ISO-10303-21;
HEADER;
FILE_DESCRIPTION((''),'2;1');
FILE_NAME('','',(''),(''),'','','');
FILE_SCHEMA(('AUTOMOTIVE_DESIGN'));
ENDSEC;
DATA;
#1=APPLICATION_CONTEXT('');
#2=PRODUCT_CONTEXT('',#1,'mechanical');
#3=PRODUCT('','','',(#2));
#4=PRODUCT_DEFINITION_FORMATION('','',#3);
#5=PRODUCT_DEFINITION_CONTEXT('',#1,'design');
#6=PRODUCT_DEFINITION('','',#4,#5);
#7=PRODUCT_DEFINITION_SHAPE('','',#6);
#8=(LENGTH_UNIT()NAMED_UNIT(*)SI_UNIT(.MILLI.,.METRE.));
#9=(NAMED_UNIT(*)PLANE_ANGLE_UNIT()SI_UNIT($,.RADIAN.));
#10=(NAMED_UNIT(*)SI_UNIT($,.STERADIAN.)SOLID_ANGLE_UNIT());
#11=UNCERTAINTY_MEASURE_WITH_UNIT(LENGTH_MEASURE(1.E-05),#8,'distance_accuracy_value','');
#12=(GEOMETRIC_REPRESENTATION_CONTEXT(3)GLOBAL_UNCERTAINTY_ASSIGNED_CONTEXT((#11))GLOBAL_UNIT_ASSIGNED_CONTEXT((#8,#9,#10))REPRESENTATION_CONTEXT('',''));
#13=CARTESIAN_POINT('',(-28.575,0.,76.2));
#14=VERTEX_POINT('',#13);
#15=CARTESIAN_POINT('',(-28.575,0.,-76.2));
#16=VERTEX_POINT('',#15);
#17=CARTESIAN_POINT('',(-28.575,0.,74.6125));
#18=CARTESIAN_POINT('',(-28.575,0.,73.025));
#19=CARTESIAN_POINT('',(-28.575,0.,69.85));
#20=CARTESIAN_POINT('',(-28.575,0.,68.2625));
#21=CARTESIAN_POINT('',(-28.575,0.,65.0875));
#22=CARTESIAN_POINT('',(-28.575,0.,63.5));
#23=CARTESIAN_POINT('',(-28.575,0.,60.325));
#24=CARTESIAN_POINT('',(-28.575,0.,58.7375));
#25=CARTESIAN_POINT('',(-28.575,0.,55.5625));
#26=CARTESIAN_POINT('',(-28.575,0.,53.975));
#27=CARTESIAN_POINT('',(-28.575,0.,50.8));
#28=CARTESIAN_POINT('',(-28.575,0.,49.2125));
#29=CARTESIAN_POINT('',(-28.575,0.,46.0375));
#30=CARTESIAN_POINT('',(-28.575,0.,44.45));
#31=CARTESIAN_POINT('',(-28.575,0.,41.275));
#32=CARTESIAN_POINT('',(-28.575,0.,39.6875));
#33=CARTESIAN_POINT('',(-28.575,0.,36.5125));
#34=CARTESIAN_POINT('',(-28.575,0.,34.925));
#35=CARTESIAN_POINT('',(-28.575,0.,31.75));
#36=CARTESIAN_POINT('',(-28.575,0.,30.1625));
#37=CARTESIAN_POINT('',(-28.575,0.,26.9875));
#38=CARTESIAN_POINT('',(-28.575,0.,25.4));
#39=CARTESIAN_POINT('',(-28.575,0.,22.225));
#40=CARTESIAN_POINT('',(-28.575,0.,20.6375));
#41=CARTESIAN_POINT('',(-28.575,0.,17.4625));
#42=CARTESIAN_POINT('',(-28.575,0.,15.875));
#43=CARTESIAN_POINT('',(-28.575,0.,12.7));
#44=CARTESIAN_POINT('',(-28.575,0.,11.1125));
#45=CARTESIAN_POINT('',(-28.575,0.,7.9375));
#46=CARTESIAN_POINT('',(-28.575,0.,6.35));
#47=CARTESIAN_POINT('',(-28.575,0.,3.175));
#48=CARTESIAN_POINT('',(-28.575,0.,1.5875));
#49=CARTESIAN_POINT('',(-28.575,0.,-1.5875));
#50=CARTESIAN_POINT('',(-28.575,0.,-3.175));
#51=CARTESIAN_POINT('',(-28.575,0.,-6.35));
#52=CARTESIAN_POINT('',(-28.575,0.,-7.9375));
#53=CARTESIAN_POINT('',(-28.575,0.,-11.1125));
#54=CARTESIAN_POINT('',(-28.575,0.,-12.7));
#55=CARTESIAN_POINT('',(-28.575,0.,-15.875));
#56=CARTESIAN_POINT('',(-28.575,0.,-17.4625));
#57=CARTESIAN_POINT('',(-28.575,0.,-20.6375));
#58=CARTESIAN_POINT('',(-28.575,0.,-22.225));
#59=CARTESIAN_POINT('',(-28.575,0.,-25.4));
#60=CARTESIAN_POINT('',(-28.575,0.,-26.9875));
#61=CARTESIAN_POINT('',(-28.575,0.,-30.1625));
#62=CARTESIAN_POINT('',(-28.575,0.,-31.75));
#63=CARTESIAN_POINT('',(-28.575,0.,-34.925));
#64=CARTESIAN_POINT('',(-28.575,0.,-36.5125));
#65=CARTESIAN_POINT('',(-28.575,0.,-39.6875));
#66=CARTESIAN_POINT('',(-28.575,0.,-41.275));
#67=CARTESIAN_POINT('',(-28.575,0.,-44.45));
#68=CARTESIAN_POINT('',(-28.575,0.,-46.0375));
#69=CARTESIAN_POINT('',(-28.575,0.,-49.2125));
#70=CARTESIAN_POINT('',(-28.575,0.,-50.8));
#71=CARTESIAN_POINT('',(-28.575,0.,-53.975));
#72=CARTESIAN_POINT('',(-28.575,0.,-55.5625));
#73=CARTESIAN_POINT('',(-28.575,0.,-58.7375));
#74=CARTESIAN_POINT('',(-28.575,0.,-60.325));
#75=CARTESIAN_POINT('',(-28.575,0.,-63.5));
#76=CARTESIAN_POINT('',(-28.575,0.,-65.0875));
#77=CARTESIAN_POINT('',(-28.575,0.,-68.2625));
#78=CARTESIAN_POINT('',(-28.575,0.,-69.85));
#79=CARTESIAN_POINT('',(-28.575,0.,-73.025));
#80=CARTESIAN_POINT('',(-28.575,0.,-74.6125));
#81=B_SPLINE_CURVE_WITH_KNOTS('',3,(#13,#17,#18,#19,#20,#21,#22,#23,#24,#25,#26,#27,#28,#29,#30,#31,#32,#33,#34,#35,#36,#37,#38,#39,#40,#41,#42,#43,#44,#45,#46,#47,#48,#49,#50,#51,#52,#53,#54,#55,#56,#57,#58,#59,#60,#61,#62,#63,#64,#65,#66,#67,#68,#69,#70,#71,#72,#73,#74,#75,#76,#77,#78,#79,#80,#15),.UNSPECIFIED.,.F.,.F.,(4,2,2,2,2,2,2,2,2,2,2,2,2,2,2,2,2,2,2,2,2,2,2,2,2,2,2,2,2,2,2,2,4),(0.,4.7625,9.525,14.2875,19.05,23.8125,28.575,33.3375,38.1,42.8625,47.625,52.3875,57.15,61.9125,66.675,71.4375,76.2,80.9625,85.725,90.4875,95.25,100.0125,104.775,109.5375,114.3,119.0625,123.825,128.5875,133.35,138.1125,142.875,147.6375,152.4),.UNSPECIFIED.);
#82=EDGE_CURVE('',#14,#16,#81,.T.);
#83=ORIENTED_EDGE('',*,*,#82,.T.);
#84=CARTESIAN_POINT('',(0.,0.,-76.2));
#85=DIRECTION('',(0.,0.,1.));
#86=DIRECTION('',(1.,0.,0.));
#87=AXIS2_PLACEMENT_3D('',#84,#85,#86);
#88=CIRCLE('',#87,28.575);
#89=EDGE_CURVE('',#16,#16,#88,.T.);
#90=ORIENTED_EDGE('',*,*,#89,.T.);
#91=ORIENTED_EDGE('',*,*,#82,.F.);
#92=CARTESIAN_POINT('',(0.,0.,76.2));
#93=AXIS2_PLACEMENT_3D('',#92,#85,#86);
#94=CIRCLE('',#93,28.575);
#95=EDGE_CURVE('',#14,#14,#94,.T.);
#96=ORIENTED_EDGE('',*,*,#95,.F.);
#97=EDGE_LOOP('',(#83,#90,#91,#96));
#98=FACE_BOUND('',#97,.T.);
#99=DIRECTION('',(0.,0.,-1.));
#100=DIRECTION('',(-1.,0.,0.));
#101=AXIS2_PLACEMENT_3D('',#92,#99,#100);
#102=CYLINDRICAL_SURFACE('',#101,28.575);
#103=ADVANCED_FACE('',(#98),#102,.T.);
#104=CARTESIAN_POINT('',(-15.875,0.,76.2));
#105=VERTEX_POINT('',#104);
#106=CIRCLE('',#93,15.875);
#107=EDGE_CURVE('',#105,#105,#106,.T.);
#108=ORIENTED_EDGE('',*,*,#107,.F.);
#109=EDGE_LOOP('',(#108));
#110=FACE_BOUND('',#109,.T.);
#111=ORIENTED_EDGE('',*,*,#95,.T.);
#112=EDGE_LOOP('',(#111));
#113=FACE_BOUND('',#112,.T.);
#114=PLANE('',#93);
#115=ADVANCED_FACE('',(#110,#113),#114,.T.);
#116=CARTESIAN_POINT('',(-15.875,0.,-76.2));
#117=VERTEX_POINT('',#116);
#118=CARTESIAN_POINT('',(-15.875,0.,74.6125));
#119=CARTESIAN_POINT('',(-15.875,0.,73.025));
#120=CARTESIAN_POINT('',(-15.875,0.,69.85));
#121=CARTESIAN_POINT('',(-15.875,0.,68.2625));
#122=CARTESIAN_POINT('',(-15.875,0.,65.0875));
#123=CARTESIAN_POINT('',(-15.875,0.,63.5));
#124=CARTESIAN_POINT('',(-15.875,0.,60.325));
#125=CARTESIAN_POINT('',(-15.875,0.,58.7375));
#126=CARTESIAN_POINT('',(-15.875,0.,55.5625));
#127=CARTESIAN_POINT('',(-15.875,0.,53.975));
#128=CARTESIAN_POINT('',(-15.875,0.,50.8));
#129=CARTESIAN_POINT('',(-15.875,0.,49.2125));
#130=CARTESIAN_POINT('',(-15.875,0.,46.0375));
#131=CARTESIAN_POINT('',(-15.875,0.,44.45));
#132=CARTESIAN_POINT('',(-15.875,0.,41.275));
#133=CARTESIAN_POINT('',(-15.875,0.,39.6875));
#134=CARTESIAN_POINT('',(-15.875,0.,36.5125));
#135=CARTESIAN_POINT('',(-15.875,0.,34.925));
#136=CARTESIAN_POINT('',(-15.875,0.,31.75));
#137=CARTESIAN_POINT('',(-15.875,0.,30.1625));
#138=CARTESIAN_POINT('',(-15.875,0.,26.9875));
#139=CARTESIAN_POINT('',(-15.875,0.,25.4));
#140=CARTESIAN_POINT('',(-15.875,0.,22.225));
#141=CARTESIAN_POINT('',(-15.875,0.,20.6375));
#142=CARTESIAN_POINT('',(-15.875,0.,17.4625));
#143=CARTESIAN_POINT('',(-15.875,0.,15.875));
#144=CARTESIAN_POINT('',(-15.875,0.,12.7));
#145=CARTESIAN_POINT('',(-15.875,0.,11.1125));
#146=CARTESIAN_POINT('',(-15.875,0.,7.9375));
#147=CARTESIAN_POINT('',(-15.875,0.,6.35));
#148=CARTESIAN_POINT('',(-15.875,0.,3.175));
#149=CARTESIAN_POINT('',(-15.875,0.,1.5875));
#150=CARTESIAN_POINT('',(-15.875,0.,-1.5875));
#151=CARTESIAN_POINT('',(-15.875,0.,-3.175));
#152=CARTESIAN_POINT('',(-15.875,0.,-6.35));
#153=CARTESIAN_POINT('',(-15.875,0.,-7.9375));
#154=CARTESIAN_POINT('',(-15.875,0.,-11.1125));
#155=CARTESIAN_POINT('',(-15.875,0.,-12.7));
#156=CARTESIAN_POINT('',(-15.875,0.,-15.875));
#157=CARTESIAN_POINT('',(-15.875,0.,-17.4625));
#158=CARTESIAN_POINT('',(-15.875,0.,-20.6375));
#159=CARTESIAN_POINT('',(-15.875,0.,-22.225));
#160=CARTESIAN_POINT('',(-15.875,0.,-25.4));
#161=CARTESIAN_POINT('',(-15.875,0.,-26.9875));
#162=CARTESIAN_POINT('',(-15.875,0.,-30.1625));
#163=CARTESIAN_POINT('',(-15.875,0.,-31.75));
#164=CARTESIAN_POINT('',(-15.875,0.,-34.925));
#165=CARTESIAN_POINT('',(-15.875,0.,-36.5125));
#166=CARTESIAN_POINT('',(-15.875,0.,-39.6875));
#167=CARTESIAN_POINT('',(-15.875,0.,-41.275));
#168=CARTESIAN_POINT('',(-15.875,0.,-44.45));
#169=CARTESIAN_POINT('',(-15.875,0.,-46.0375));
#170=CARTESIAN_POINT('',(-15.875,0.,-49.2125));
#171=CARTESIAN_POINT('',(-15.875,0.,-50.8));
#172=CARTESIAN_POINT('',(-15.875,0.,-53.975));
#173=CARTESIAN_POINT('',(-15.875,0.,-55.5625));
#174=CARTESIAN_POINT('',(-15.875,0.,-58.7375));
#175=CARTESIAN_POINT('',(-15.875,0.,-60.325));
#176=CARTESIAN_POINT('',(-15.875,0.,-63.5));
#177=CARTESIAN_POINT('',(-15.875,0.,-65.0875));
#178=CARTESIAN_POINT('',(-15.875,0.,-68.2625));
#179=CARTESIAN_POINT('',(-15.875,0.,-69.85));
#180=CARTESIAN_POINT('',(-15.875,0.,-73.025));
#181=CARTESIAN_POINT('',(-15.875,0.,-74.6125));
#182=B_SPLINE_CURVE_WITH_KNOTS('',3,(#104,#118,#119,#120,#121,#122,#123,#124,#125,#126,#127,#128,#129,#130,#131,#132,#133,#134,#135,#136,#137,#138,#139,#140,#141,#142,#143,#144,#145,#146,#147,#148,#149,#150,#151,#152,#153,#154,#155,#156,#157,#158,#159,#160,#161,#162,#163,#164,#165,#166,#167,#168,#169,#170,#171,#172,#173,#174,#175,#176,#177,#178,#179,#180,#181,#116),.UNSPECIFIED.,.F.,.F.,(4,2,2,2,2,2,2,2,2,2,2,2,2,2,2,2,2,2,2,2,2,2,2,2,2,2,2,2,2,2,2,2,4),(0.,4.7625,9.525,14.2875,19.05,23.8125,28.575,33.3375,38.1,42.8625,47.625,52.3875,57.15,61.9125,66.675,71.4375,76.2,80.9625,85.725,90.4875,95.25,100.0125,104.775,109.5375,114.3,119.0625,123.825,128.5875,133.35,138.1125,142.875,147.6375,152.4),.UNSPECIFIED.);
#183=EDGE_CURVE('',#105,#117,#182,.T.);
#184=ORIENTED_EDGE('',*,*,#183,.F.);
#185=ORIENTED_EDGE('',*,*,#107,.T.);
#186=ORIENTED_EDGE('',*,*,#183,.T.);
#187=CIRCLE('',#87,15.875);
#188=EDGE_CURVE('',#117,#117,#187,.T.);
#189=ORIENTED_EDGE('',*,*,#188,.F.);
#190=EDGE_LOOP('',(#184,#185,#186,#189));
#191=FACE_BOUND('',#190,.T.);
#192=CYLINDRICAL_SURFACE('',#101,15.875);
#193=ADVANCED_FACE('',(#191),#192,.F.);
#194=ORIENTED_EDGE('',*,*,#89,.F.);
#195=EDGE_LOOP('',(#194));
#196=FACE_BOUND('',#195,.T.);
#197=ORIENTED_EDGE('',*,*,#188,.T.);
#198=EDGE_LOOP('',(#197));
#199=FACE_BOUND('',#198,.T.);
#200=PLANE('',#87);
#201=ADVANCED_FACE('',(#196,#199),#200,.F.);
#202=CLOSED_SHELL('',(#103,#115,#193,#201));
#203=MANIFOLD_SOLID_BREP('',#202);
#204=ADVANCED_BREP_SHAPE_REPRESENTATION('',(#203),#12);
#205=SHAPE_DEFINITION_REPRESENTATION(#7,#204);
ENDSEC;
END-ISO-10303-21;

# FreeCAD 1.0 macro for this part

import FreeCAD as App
import Part
import Sketcher

V = App.Vector
Q = App.Units.Quantity

doc = App.newDocument("Part")
body = doc.addObject("PartDesign::Body", "Body")

# Sketch on XY plane
sketch1 = doc.addObject("Sketcher::SketchObject", "Sketch")
body.addObject(sketch1)
sketch1.AttachmentSupport = (doc.XY_Plane, [""])
sketch1.MapMode = "FlatFace"
sketch1.addGeometry([
    Part.Circle(V(0, 0, 0), V(0, 0, 1), 29),
    Part.Circle(V(0, 0, 0), V(0, 0, 1), 16),
], False)
sketch1.addConstraint([
    Sketcher.Constraint("Coincident", 0, 3, -1, 1),
    Sketcher.Constraint("Coincident", 1, 3, -1, 1),
    Sketcher.Constraint("Diameter", 0, Q("2.25 in")),
    Sketcher.Constraint("Diameter", 1, Q("1.25 in")),
])
pad1 = doc.addObject("PartDesign::Pad", "Pad")
body.addObject(pad1)
pad1.Profile = sketch1
pad1.Length = Q("6 in")
pad1.Midplane = True

doc.recompute()
